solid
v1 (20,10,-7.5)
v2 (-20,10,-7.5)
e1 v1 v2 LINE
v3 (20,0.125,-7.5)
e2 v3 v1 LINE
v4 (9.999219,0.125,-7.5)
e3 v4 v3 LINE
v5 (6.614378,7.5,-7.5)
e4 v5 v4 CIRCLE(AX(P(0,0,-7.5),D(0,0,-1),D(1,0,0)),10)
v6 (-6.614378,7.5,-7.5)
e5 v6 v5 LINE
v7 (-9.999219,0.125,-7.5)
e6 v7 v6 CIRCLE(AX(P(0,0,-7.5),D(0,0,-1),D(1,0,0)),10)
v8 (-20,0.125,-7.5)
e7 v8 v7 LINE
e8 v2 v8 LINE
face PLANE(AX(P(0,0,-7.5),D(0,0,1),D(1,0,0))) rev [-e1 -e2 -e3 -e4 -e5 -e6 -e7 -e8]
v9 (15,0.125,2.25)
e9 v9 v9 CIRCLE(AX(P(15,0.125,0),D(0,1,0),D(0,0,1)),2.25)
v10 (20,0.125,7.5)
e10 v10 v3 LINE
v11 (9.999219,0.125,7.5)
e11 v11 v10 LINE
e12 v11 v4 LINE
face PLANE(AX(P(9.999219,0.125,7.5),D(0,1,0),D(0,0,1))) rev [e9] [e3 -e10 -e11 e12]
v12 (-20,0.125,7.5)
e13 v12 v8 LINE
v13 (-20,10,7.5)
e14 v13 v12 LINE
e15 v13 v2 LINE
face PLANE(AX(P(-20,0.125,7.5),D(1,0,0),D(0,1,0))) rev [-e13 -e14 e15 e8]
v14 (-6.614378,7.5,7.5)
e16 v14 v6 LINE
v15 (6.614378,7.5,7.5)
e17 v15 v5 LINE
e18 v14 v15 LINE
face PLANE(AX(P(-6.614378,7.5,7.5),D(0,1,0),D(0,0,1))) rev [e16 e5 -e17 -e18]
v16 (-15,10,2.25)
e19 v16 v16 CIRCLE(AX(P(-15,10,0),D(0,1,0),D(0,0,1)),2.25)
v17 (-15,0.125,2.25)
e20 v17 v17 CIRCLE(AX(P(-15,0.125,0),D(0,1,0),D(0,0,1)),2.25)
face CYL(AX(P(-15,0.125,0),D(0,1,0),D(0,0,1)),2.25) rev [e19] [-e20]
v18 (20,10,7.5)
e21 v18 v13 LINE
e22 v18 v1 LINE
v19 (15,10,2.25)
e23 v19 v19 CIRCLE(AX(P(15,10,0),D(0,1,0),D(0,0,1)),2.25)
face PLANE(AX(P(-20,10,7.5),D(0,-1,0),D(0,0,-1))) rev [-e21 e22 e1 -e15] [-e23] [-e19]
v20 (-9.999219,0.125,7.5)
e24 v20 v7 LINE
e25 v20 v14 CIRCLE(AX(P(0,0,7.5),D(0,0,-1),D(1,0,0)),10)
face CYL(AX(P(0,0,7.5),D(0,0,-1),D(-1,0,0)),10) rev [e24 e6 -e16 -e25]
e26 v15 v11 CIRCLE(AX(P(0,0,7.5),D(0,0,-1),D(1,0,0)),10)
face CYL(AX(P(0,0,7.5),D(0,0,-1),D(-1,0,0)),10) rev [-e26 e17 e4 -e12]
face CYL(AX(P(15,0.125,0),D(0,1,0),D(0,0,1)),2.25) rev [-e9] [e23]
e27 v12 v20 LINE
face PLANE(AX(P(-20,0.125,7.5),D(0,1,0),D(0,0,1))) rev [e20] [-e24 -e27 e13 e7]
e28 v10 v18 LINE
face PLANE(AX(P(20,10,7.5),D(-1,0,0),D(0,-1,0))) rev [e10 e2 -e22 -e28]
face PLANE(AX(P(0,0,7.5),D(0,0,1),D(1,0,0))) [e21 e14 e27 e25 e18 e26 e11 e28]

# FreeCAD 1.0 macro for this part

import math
import FreeCAD as App
import Part
import Sketcher
Q = App.Units.Quantity

doc = App.newDocument("Part")
params = doc.addObject("Spreadsheet::Sheet", "Params")
for row, (alias, value) in enumerate([
    ("sketch1_radius", "10 mm"),
    ("sketch1_width", "40 mm"),
    ("pad1_length", "15 mm"),
    ("sketch2_diameter", "4.5 mm"),
], start=1):
    params.set(f"A{row}", alias)
    params.set(f"B{row}", "=" + value)
    params.setAlias(f"B{row}", alias)

body = doc.addObject("PartDesign::Body", "Body")

# Sketch on XY plane
sketch1 = body.newObject("Sketcher::SketchObject", "Sketch")
sketch1.AttachmentSupport = (doc.getObject("XY_Plane"), [""])
sketch1.MapMode = "FlatFace"
sketch1.addGeometry(Part.LineSegment(App.Vector(-20, 0, 0), App.Vector(-10, 0, 0)), False)
sketch1.addGeometry(Part.ArcOfCircle(Part.Circle(App.Vector(0, 0, 0), App.Vector(0, 0, 1), 10), math.radians(131), math.radians(179)), False)
sketch1.addGeometry(Part.LineSegment(App.Vector(-7, 8, 0), App.Vector(7, 8, 0)), False)
sketch1.addGeometry(Part.ArcOfCircle(Part.Circle(App.Vector(0, 0, 0), App.Vector(0, 0, 1), 10), math.radians(1), math.radians(49)), False)
sketch1.addGeometry(Part.LineSegment(App.Vector(10, 0, 0), App.Vector(20, 0, 0)), False)
sketch1.addGeometry(Part.LineSegment(App.Vector(20, 0, 0), App.Vector(20, 10, 0)), False)
sketch1.addGeometry(Part.LineSegment(App.Vector(20, 10, 0), App.Vector(-20, 10, 0)), False)
sketch1.addGeometry(Part.LineSegment(App.Vector(-20, 10, 0), App.Vector(-20, 0, 0)), False)
sketch1.addConstraint(Sketcher.Constraint("Coincident", 0, 2, 1, 2))
sketch1.addConstraint(Sketcher.Constraint("Coincident", 1, 1, 2, 1))
sketch1.addConstraint(Sketcher.Constraint("Coincident", 2, 2, 3, 2))
sketch1.addConstraint(Sketcher.Constraint("Coincident", 3, 1, 4, 1))
sketch1.addConstraint(Sketcher.Constraint("Coincident", 4, 2, 5, 1))
sketch1.addConstraint(Sketcher.Constraint("Coincident", 5, 2, 6, 1))
sketch1.addConstraint(Sketcher.Constraint("Coincident", 6, 2, 7, 1))
sketch1.addConstraint(Sketcher.Constraint("Coincident", 7, 2, 0, 1))
sketch1.addConstraint(Sketcher.Constraint("Horizontal", 0))
sketch1.addConstraint(Sketcher.Constraint("Horizontal", 2))
sketch1.addConstraint(Sketcher.Constraint("Horizontal", 4))
sketch1.addConstraint(Sketcher.Constraint("Vertical", 5))
sketch1.addConstraint(Sketcher.Constraint("Horizontal", 6))
sketch1.addConstraint(Sketcher.Constraint("Vertical", 7))
sketch1.addConstraint(Sketcher.Constraint("Coincident", 1, 3, -1, 1))
sketch1.addConstraint(Sketcher.Constraint("Coincident", 3, 3, -1, 1))
sketch1.addConstraint(Sketcher.Constraint("Equal", 1, 3))
sketch1.addConstraint(Sketcher.Constraint("Symmetric", 4, 2, 7, 2, -2))
sketch1.addConstraint(Sketcher.Constraint("Radius", 1, Q("10 mm")))
sketch1.addConstraint(Sketcher.Constraint("DistanceX", 6, 2, 6, 1, Q("40 mm")))
sketch1.addConstraint(Sketcher.Constraint("DistanceY", -1, 1, 5, 2, Q("10 mm")))
sketch1.addConstraint(Sketcher.Constraint("DistanceY", -1, 1, 1, 1, Q("7.5 mm")))
sketch1.addConstraint(Sketcher.Constraint("DistanceY", 5, 1, 5, 2, Q("9.875 mm")))
sketch1.setExpression("Constraints[18]", "Params.sketch1_radius")
sketch1.setExpression("Constraints[19]", "Params.sketch1_width")
pad1 = body.newObject("PartDesign::Pad", "Pad")
pad1.Profile = sketch1
pad1.setExpression("Length", "Params.pad1_length")
pad1.Midplane = True

# Sketch on XZ plane
sketch2 = body.newObject("Sketcher::SketchObject", "Sketch001")
sketch2.AttachmentSupport = (doc.getObject("XZ_Plane"), [""])
sketch2.MapMode = "FlatFace"
sketch2.AttachmentOffset = App.Placement(App.Vector(0, 0, -10), App.Rotation())
sketch2.addGeometry(Part.Circle(App.Vector(-15, 0, 0), App.Vector(0, 0, 1), 2.2), False)
sketch2.addGeometry(Part.Circle(App.Vector(15, 0, 0), App.Vector(0, 0, 1), 2.2), False)
sketch2.addConstraint(Sketcher.Constraint("Equal", 0, 1))
sketch2.addConstraint(Sketcher.Constraint("Symmetric", 0, 3, 1, 3, -1, 1))
sketch2.addConstraint(Sketcher.Constraint("PointOnObject", 0, 3, -1))
sketch2.addConstraint(Sketcher.Constraint("Diameter", 0, Q("4.5 mm")))
sketch2.addConstraint(Sketcher.Constraint("DistanceX", 0, 3, -1, 1, Q("15 mm")))
sketch2.setExpression("Constraints[3]", "Params.sketch2_diameter")
pocket1 = body.newObject("PartDesign::Pocket", "Pocket")
pocket1.Profile = sketch2
pocket1.Type = "ThroughAll"
pocket1.Reversed = True

doc.recompute()
